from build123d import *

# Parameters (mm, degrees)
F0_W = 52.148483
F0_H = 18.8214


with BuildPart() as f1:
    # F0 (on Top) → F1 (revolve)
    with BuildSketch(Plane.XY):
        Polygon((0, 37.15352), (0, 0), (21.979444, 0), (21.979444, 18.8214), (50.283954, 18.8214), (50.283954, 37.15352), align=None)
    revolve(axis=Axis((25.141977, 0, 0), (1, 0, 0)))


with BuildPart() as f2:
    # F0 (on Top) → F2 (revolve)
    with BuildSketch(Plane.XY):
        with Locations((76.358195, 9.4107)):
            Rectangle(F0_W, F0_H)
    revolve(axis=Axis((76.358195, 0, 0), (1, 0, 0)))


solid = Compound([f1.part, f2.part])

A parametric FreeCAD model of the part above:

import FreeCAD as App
import Part
import Sketcher
Q = App.Units.Quantity


def add_polygon(sketch, points):
    """Adds a closed chain of lines whose ends are joined by coincident constraints."""
    first, n = sketch.GeometryCount, len(points)
    for a, b in zip(points, points[1:] + points[:1]):
        sketch.addGeometry(Part.LineSegment(App.Vector(*a, 0), App.Vector(*b, 0)), False)
    for i in range(n):
        sketch.addConstraint(Sketcher.Constraint("Coincident", first + i, 2, first + (i + 1) % n, 1))

doc = App.newDocument("Part")
params = doc.addObject("Spreadsheet::Sheet", "Params")
for row, (alias, value) in enumerate([
    ("sketch1_height", "0.741 in"),
    ("revolution_angle", "360 deg"),
    ("sketch2_height", "0.741 in"),
    ("revolution2_angle", "360 deg"),
], start=1):
    params.set(f"A{row}", alias)
    params.set(f"B{row}", "=" + value)
    params.setAlias(f"B{row}", alias)

body = doc.addObject("PartDesign::Body", "Body")

sketch1 = body.newObject("Sketcher::SketchObject", "Sketch")
sketch1.AttachmentSupport = (doc.getObject("XY_Plane"), [""])
sketch1.MapMode = "FlatFace"
add_polygon(sketch1, [(0, 37), (0, 0), (22, 0), (22, 19), (50, 19), (50, 37)])
sketch1.addConstraint(Sketcher.Constraint("Vertical", 0))
sketch1.addConstraint(Sketcher.Constraint("Horizontal", 1))
sketch1.addConstraint(Sketcher.Constraint("Vertical", 2))
sketch1.addConstraint(Sketcher.Constraint("Horizontal", 3))
sketch1.addConstraint(Sketcher.Constraint("Vertical", 4))
sketch1.addConstraint(Sketcher.Constraint("Horizontal", 5))
sketch1.addConstraint(Sketcher.Constraint("Coincident", 0, 2, -1, 1))
sketch1.addConstraint(Sketcher.Constraint("DistanceY", 2, 1, 2, 2, Q("0.741 in")))
sketch1.addConstraint(Sketcher.Constraint("DistanceX", 3, 1, 3, 2, Q("28.30451 mm")))
sketch1.addConstraint(Sketcher.Constraint("DistanceY", 0, 2, 0, 1, Q("37.15352 mm")))
sketch1.addConstraint(Sketcher.Constraint("DistanceX", 1, 1, 1, 2, Q("21.979444 mm")))
sketch1.setExpression("Constraints[13]", "Params.sketch1_height")
revolution = body.newObject("PartDesign::Revolution", "Revolution")
revolution.Profile = sketch1
revolution.ReferenceAxis = (sketch1, ["H_Axis"])
revolution.setExpression("Angle", "Params.revolution_angle")
body2 = doc.addObject("PartDesign::Body", "Body001")

sketch2 = body2.newObject("Sketcher::SketchObject", "Sketch001")
sketch2.AttachmentSupport = (doc.getObject("XY_Plane001"), [""])
sketch2.MapMode = "FlatFace"
add_polygon(sketch2, [(50, 19), (50, 0), (102, 0), (102, 19)])
sketch2.addConstraint(Sketcher.Constraint("Vertical", 0))
sketch2.addConstraint(Sketcher.Constraint("Horizontal", 1))
sketch2.addConstraint(Sketcher.Constraint("Vertical", 2))
sketch2.addConstraint(Sketcher.Constraint("Horizontal", 3))
sketch2.addConstraint(Sketcher.Constraint("PointOnObject", 0, 2, -1))
sketch2.addConstraint(Sketcher.Constraint("DistanceY", 0, 2, 0, 1, Q("0.741 in")))
sketch2.addConstraint(Sketcher.Constraint("DistanceX", 1, 1, 1, 2, Q("52.148483 mm")))
sketch2.addConstraint(Sketcher.Constraint("DistanceX", -1, 1, 0, 2, Q("50.283954 mm")))
sketch2.setExpression("Constraints[9]", "Params.sketch2_height")
revolution2 = body2.newObject("PartDesign::Revolution", "Revolution001")
revolution2.Profile = sketch2
revolution2.ReferenceAxis = (sketch2, ["H_Axis"])
revolution2.setExpression("Angle", "Params.revolution2_angle")

doc.recompute()
